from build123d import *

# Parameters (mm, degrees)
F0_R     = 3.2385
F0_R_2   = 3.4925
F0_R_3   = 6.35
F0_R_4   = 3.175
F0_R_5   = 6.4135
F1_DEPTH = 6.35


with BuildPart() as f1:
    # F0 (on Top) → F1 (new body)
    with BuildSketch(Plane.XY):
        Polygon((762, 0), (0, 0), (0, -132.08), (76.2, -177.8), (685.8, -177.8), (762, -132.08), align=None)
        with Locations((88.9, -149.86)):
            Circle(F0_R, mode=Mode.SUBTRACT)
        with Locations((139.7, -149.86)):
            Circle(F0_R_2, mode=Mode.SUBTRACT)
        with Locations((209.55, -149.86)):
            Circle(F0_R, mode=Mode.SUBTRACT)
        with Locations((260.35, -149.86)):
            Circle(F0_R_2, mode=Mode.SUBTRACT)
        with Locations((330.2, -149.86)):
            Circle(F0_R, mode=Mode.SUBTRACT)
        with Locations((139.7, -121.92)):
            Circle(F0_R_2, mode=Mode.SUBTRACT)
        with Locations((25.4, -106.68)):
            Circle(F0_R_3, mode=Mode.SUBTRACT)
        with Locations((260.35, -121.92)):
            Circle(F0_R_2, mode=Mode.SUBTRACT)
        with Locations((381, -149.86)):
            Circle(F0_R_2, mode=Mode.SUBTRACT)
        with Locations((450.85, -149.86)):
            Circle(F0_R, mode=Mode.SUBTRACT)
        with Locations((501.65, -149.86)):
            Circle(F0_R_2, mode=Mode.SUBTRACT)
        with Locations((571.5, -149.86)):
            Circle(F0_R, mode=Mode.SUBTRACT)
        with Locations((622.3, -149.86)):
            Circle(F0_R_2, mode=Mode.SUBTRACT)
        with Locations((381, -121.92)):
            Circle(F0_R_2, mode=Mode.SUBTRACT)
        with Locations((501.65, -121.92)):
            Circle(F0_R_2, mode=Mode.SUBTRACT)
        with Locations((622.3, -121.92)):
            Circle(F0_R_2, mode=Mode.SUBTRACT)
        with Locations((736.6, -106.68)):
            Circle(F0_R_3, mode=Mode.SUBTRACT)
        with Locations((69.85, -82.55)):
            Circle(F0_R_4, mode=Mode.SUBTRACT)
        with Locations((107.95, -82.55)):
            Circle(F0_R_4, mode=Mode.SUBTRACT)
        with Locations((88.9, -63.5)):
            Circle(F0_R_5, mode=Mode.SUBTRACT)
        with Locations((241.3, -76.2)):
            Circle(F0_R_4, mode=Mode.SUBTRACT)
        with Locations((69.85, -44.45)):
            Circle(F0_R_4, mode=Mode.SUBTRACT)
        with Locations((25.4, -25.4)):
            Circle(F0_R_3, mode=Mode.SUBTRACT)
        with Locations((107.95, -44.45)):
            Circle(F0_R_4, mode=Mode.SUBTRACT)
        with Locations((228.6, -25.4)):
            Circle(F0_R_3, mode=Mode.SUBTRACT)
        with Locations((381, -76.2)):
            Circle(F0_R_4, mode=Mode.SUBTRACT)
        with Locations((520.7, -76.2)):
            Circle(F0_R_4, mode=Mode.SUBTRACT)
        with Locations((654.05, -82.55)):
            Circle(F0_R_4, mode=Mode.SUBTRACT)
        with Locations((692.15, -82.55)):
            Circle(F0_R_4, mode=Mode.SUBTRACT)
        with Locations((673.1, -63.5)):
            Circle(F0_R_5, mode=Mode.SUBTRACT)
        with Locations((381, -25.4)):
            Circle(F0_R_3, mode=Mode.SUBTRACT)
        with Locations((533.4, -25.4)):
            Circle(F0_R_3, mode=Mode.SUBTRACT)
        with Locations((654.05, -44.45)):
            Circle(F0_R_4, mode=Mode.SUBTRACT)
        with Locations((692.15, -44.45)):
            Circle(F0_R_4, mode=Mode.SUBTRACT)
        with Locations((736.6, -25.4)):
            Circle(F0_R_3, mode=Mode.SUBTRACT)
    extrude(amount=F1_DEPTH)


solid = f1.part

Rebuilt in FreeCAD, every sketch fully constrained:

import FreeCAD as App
import Part
import Sketcher
from FreeCAD import Vector
Q = App.Units.Quantity

doc = App.newDocument("Part")
params = doc.addObject("Spreadsheet::Sheet", "Params")
for row, (alias, value) in enumerate([
    ("sketch1_diameter", "0.5 in"),
    ("sketch1_diameter2", "0.25 in"),
    ("sketch1_width", "30 in"),
    ("sketch1_width2", "24 in"),
    ("sketch1_diameter3", "0.255 in"),
    ("pad1_length", "0.25 in"),
], start=1):
    params.set(f"A{row}", alias)
    params.set(f"B{row}", "=" + value)
    params.setAlias(f"B{row}", alias)

body = doc.addObject("PartDesign::Body", "Body")

sketch1 = body.newObject("Sketcher::SketchObject", "Sketch")
sketch1.AttachmentSupport = (doc.getObject("XY_Plane"), [""])
sketch1.MapMode = "FlatFace"
sketch1.addGeometry([
    Part.LineSegment(Vector(762, 0, 0), Vector(0, 0, 0)),
    Part.LineSegment(Vector(0, 0, 0), Vector(0, -132.1, 0)),
    Part.LineSegment(Vector(0, -132.1, 0), Vector(76.2, -177.8, 0)),
    Part.LineSegment(Vector(76.2, -177.8, 0), Vector(685.8, -177.8, 0)),
    Part.LineSegment(Vector(685.8, -177.8, 0), Vector(762, -132.1, 0)),
    Part.LineSegment(Vector(762, -132.1, 0), Vector(762, 0, 0)),
    Part.Circle(Vector(88.9, -149.9, 0), Vector(0, 0, 1), 3.2),
    Part.Circle(Vector(139.7, -149.9, 0), Vector(0, 0, 1), 3.5),
    Part.Circle(Vector(139.7, -121.9, 0), Vector(0, 0, 1), 3.5),
    Part.Circle(Vector(209.6, -149.9, 0), Vector(0, 0, 1), 3.2),
    Part.Circle(Vector(260.4, -149.9, 0), Vector(0, 0, 1), 3.5),
    Part.Circle(Vector(330.2, -149.9, 0), Vector(0, 0, 1), 3.2),
    Part.Circle(Vector(260.4, -121.9, 0), Vector(0, 0, 1), 3.5),
    Part.Circle(Vector(25.4, -106.7, 0), Vector(0, 0, 1), 6.3),
    Part.Circle(Vector(381, -149.9, 0), Vector(0, 0, 1), 3.5),
    Part.Circle(Vector(450.9, -149.9, 0), Vector(0, 0, 1), 3.2),
    Part.Circle(Vector(501.6, -149.9, 0), Vector(0, 0, 1), 3.5),
    Part.Circle(Vector(381, -121.9, 0), Vector(0, 0, 1), 3.5),
    Part.Circle(Vector(501.6, -121.9, 0), Vector(0, 0, 1), 3.5),
    Part.Circle(Vector(571.5, -149.9, 0), Vector(0, 0, 1), 3.2),
    Part.Circle(Vector(622.3, -149.9, 0), Vector(0, 0, 1), 3.5),
    Part.Circle(Vector(622.3, -121.9, 0), Vector(0, 0, 1), 3.5),
    Part.Circle(Vector(736.6, -106.7, 0), Vector(0, 0, 1), 6.3),
    Part.Circle(Vector(69.8, -82.5, 0), Vector(0, 0, 1), 3.2),
    Part.Circle(Vector(108, -82.5, 0), Vector(0, 0, 1), 3.2),
    Part.Circle(Vector(88.9, -63.5, 0), Vector(0, 0, 1), 6.4),
    Part.Circle(Vector(241.3, -76.2, 0), Vector(0, 0, 1), 3.2),
    Part.Circle(Vector(69.8, -44.5, 0), Vector(0, 0, 1), 3.2),
    Part.Circle(Vector(108, -44.5, 0), Vector(0, 0, 1), 3.2),
    Part.Circle(Vector(25.4, -25.4, 0), Vector(0, 0, 1), 6.3),
    Part.Circle(Vector(228.6, -25.4, 0), Vector(0, 0, 1), 6.3),
    Part.Circle(Vector(381, -76.2, 0), Vector(0, 0, 1), 3.2),
    Part.Circle(Vector(520.7, -76.2, 0), Vector(0, 0, 1), 3.2),
    Part.Circle(Vector(654, -82.5, 0), Vector(0, 0, 1), 3.2),
    Part.Circle(Vector(692.1, -82.5, 0), Vector(0, 0, 1), 3.2),
    Part.Circle(Vector(673.1, -63.5, 0), Vector(0, 0, 1), 6.4),
    Part.Circle(Vector(381, -25.4, 0), Vector(0, 0, 1), 6.3),
    Part.Circle(Vector(533.4, -25.4, 0), Vector(0, 0, 1), 6.3),
    Part.Circle(Vector(654, -44.5, 0), Vector(0, 0, 1), 3.2),
    Part.Circle(Vector(692.1, -44.5, 0), Vector(0, 0, 1), 3.2),
    Part.Circle(Vector(736.6, -25.4, 0), Vector(0, 0, 1), 6.3),
], False)
sketch1.addConstraint([
    Sketcher.Constraint("Coincident", 0, 2, 1, 1),
    Sketcher.Constraint("Coincident", 1, 2, 2, 1),
    Sketcher.Constraint("Coincident", 2, 2, 3, 1),
    Sketcher.Constraint("Coincident", 3, 2, 4, 1),
    Sketcher.Constraint("Coincident", 4, 2, 5, 1),
    Sketcher.Constraint("Coincident", 5, 2, 0, 1),
    Sketcher.Constraint("Horizontal", 0),
    Sketcher.Constraint("Vertical", 1),
    Sketcher.Constraint("Horizontal", 3),
    Sketcher.Constraint("Vertical", 5),
    Sketcher.Constraint("Coincident", 0, 2, -1, 1),
    Sketcher.Constraint("Equal", 7, 8),
    Sketcher.Constraint("Equal", 6, 9),
    Sketcher.Constraint("Equal", 8, 10),
    Sketcher.Constraint("Equal", 9, 11),
    Sketcher.Constraint("Equal", 10, 12),
    Sketcher.Constraint("Equal", 12, 14),
    Sketcher.Constraint("Equal", 11, 15),
    Sketcher.Constraint("Equal", 14, 16),
    Sketcher.Constraint("Equal", 16, 17),
    Sketcher.Constraint("Equal", 17, 18),
    Sketcher.Constraint("Equal", 15, 19),
    Sketcher.Constraint("Equal", 18, 20),
    Sketcher.Constraint("Equal", 20, 21),
    Sketcher.Constraint("Equal", 13, 22),
    Sketcher.Constraint("Equal", 23, 24),
    Sketcher.Constraint("Equal", 24, 26),
    Sketcher.Constraint("Equal", 26, 27),
    Sketcher.Constraint("Equal", 27, 28),
    Sketcher.Constraint("Equal", 22, 29),
    Sketcher.Constraint("Equal", 29, 30),
    Sketcher.Constraint("Equal", 28, 31),
    Sketcher.Constraint("Equal", 31, 32),
    Sketcher.Constraint("Equal", 32, 33),
    Sketcher.Constraint("Equal", 33, 34),
    Sketcher.Constraint("Equal", 25, 35),
    Sketcher.Constraint("Equal", 30, 36),
    Sketcher.Constraint("Equal", 36, 37),
    Sketcher.Constraint("Equal", 34, 38),
    Sketcher.Constraint("Equal", 38, 39),
    Sketcher.Constraint("Equal", 37, 40),
    Sketcher.Constraint("Horizontal", 6, 3, 7, 3),
    Sketcher.Constraint("Horizontal", 7, 3, 9, 3),
    Sketcher.Constraint("Horizontal", 9, 3, 10, 3),
    Sketcher.Constraint("Horizontal", 10, 3, 11, 3),
    Sketcher.Constraint("Horizontal", 8, 3, 12, 3),
    Sketcher.Constraint("Horizontal", 11, 3, 14, 3),
    Sketcher.Constraint("Horizontal", 14, 3, 15, 3),
    Sketcher.Constraint("Horizontal", 15, 3, 16, 3),
    Sketcher.Constraint("Horizontal", 12, 3, 17, 3),
    Sketcher.Constraint("Horizontal", 17, 3, 18, 3),
    Sketcher.Constraint("Horizontal", 16, 3, 19, 3),
    Sketcher.Constraint("Horizontal", 19, 3, 20, 3),
    Sketcher.Constraint("Horizontal", 18, 3, 21, 3),
    Sketcher.Constraint("Horizontal", 13, 3, 22, 3),
    Sketcher.Constraint("Horizontal", 23, 3, 24, 3),
    Sketcher.Constraint("Horizontal", 27, 3, 28, 3),
    Sketcher.Constraint("Horizontal", 29, 3, 30, 3),
    Sketcher.Constraint("Horizontal", 26, 3, 31, 3),
    Sketcher.Constraint("Horizontal", 31, 3, 32, 3),
    Sketcher.Constraint("Horizontal", 24, 3, 33, 3),
    Sketcher.Constraint("Horizontal", 33, 3, 34, 3),
    Sketcher.Constraint("Horizontal", 25, 3, 35, 3),
    Sketcher.Constraint("Horizontal", 30, 3, 36, 3),
    Sketcher.Constraint("Horizontal", 36, 3, 37, 3),
    Sketcher.Constraint("Horizontal", 28, 3, 38, 3),
    Sketcher.Constraint("Horizontal", 38, 3, 39, 3),
    Sketcher.Constraint("Horizontal", 37, 3, 40, 3),
    Sketcher.Constraint("Horizontal", 1, 2, 4, 2),
    Sketcher.Constraint("Vertical", 7, 3, 8, 3),
    Sketcher.Constraint("Vertical", 10, 3, 12, 3),
    Sketcher.Constraint("Vertical", 14, 3, 17, 3),
    Sketcher.Constraint("Vertical", 16, 3, 18, 3),
    Sketcher.Constraint("Vertical", 20, 3, 21, 3),
    Sketcher.Constraint("Vertical", 6, 3, 25, 3),
    Sketcher.Constraint("Vertical", 23, 3, 27, 3),
    Sketcher.Constraint("Vertical", 24, 3, 28, 3),
    Sketcher.Constraint("Vertical", 13, 3, 29, 3),
    Sketcher.Constraint("Vertical", 17, 3, 31, 3),
    Sketcher.Constraint("Vertical", 31, 3, 36, 3),
    Sketcher.Constraint("Vertical", 33, 3, 38, 3),
    Sketcher.Constraint("Vertical", 34, 3, 39, 3),
    Sketcher.Constraint("Vertical", 22, 3, 40, 3),
    Sketcher.Constraint("Equal", 2, 4),
    Sketcher.Constraint("Diameter", 13, Q("0.5 in")),
    Sketcher.Constraint("Diameter", 23, Q("0.25 in")),
    Sketcher.Constraint("DistanceX", 0, 2, 0, 1, Q("30 in")),
    Sketcher.Constraint("DistanceX", 3, 1, 3, 2, Q("24 in")),
    Sketcher.Constraint("Diameter", 6, Q("0.255 in")),
    Sketcher.Constraint("Diameter", 7, Q("0.275 in")),
    Sketcher.Constraint("Diameter", 25, Q("0.505 in")),
    Sketcher.Constraint("DistanceY", 1, 2, 1, 1, Q("5.2 in")),
    Sketcher.Constraint("DistanceX", -1, 1, 11, 3, Q("13 in")),
    Sketcher.Constraint("DistanceX", -1, 1, 13, 3, Q("1 in")),
    Sketcher.Constraint("DistanceX", -1, 1, 14, 3, Q("15 in")),
    Sketcher.Constraint("DistanceX", -1, 1, 22, 3, Q("29 in")),
    Sketcher.Constraint("DistanceY", 26, 3, -1, 1, Q("3 in")),
    Sketcher.Constraint("DistanceY", 29, 3, -1, 1, Q("1 in")),
    Sketcher.Constraint("DistanceX", -1, 1, 30, 3, Q("9 in")),
    Sketcher.Constraint("DistanceX", -1, 1, 37, 3, Q("21 in")),
    Sketcher.Constraint("DistanceY", 2, 2, -1, 1, Q("7 in")),
    Sketcher.Constraint("DistanceX", 6, 3, 7, 3, Q("2 in")),
    Sketcher.Constraint("DistanceX", 9, 3, 10, 3, Q("2 in")),
    Sketcher.Constraint("DistanceX", 15, 3, 16, 3, Q("2 in")),
    Sketcher.Constraint("DistanceX", 19, 3, 20, 3, Q("2 in")),
    Sketcher.Constraint("DistanceX", 8, 3, 26, 3, Q("4 in")),
    Sketcher.Constraint("DistanceX", 32, 3, 19, 3, Q("2 in")),
    Sketcher.Constraint("DistanceX", 21, 3, 35, 3, Q("2 in")),
    Sketcher.Constraint("DistanceY", 1, 2, 13, 3, Q("1 in")),
    Sketcher.Constraint("DistanceX", -1, 1, 6, 3, Q("3.5 in")),
    Sketcher.Constraint("DistanceY", 6, 3, -1, 1, Q("5.9 in")),
    Sketcher.Constraint("DistanceY", 8, 3, -1, 1, Q("4.8 in")),
    Sketcher.Constraint("DistanceX", -1, 1, 19, 3, Q("22.5 in")),
    Sketcher.Constraint("DistanceY", 25, 3, -1, 1, Q("2.5 in")),
    Sketcher.Constraint("DistanceX", 10, 3, 15, 3, Q("7.5 in")),
    Sketcher.Constraint("DistanceX", 23, 3, 9, 3, Q("5.5 in")),
    Sketcher.Constraint("DistanceX", 23, 3, 24, 3, Q("1.5 in")),
    Sketcher.Constraint("DistanceY", 23, 3, 27, 3, Q("1.5 in")),
    Sketcher.Constraint("DistanceX", 33, 3, 34, 3, Q("1.5 in")),
    Sketcher.Constraint("DistanceX", -1, 1, 9, 3, Q("8.25 in")),
    Sketcher.Constraint("DistanceY", 23, 3, -1, 1, Q("3.25 in")),
    Sketcher.Constraint("DistanceX", -1, 1, 33, 3, Q("25.75 in")),
])
sketch1.setExpression("Constraints[84]", "Params.sketch1_diameter")
sketch1.setExpression("Constraints[85]", "Params.sketch1_diameter2")
sketch1.setExpression("Constraints[86]", "Params.sketch1_width")
sketch1.setExpression("Constraints[87]", "Params.sketch1_width2")
sketch1.setExpression("Constraints[88]", "Params.sketch1_diameter3")
pad1 = body.newObject("PartDesign::Pad", "Pad")
pad1.Profile = sketch1
pad1.setExpression("Length", "Params.pad1_length")

doc.recompute()
